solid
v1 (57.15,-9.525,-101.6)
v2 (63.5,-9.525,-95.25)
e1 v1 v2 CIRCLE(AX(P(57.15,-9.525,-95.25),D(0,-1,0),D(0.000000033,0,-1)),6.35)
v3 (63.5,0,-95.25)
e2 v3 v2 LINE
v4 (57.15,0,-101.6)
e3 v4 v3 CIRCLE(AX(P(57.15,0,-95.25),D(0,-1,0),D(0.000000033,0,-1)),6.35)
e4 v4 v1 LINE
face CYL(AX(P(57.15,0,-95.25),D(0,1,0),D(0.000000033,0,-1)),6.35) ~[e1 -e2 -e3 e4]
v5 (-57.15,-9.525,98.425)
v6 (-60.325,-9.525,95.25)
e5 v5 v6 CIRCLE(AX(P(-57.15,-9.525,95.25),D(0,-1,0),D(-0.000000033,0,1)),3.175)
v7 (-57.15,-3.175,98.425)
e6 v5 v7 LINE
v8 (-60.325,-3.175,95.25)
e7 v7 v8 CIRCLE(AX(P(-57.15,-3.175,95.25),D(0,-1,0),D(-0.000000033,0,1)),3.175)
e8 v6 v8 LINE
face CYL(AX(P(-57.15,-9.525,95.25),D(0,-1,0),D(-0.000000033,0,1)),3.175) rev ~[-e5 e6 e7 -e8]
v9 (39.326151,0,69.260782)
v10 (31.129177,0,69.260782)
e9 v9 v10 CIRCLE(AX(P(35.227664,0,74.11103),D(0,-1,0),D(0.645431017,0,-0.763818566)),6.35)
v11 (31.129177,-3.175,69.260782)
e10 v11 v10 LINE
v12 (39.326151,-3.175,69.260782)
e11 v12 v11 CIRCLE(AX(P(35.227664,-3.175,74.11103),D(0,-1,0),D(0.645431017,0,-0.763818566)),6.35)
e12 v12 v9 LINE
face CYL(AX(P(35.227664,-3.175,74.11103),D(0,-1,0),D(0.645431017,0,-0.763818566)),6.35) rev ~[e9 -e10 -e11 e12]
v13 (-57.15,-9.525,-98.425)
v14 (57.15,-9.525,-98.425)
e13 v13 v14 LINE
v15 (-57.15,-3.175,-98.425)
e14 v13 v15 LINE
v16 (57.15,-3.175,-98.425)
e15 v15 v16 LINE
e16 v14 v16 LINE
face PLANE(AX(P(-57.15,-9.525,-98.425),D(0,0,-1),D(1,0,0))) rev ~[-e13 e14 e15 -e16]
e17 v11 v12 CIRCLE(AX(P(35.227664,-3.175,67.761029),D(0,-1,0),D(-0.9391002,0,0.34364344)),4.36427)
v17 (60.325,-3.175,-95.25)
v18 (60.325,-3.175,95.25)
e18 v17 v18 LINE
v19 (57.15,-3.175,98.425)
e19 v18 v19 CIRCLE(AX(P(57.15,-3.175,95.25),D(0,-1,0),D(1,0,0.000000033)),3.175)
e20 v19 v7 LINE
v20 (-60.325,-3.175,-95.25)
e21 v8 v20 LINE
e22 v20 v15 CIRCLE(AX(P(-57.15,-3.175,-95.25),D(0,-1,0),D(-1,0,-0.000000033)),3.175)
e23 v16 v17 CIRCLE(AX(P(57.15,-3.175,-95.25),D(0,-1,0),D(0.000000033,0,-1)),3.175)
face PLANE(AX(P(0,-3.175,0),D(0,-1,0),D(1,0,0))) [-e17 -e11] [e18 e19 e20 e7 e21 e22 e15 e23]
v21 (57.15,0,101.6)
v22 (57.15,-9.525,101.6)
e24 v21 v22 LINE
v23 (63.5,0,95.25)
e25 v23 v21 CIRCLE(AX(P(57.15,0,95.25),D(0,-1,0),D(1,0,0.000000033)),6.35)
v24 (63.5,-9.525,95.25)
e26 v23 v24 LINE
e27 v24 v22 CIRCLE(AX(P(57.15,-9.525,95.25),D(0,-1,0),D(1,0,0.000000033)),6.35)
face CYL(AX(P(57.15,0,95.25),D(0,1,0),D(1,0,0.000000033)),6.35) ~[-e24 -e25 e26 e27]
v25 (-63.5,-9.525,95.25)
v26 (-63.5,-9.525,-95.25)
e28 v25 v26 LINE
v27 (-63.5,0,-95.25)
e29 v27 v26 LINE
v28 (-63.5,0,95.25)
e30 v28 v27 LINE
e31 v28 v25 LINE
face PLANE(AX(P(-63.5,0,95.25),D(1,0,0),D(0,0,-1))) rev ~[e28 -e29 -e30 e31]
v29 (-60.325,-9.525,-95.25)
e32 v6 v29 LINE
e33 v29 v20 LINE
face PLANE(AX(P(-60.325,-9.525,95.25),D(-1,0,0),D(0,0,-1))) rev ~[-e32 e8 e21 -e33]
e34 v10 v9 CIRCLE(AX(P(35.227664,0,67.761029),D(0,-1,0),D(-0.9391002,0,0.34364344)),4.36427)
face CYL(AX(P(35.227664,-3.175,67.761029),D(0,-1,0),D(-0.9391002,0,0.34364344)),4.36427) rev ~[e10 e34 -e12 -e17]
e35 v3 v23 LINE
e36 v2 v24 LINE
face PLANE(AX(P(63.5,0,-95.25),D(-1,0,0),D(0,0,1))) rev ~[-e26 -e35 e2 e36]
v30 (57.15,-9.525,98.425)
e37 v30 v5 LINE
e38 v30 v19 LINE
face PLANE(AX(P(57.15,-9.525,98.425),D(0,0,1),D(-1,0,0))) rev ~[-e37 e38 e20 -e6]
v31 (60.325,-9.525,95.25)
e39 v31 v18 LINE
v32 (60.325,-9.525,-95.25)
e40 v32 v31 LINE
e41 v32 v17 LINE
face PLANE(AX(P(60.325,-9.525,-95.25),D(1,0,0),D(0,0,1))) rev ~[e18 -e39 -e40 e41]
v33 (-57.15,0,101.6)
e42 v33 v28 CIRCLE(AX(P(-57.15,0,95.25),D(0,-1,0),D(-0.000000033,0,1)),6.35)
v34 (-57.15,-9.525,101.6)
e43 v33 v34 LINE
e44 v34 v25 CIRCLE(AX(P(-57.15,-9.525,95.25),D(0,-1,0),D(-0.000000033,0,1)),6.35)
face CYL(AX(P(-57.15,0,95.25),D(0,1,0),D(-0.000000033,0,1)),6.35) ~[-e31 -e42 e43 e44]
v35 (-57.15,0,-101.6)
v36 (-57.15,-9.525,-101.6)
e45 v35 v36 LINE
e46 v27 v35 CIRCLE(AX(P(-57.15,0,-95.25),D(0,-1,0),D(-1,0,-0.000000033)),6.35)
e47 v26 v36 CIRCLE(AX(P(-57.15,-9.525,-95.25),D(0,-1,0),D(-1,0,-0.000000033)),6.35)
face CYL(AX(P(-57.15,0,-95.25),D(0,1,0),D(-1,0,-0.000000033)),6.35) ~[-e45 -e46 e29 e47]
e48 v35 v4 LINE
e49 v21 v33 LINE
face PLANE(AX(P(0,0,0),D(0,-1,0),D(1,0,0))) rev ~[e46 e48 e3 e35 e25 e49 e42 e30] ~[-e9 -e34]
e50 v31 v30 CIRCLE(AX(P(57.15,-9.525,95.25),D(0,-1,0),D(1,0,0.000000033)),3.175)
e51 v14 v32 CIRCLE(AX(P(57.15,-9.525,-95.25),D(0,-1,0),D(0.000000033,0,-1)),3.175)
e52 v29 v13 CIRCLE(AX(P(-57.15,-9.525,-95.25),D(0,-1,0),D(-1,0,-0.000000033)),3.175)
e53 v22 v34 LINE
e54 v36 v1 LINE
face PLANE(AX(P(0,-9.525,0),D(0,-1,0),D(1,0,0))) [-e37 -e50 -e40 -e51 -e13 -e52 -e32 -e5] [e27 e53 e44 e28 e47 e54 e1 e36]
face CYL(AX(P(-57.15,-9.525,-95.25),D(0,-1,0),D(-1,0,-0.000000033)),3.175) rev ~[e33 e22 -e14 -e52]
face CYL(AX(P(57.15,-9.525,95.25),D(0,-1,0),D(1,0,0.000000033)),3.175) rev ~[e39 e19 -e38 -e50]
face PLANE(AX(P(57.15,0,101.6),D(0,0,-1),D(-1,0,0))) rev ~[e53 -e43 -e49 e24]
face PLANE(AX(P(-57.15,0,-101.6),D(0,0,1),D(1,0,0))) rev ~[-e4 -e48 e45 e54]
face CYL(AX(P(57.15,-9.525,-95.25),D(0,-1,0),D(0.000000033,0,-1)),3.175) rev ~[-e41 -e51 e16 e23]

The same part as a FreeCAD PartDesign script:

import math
import FreeCAD as App
import Part
import Sketcher
Q = App.Units.Quantity

doc = App.newDocument("Part")
body = doc.addObject("PartDesign::Body", "Body")

# Sketch on XZ plane
sketch1 = body.newObject("Sketcher::SketchObject", "Sketch")
sketch1.AttachmentSupport = (doc.getObject("XZ_Plane"), [""])
sketch1.MapMode = "FlatFace"
sketch1.addGeometry([
    Part.ArcOfCircle(Part.Circle(App.Vector(57, 95, 0), App.Vector(0, 0, 1), 6), math.radians(0), math.radians(90)),  # 0
    Part.LineSegment(App.Vector(57, 102, 0), App.Vector(-57, 102, 0)),  # 1
    Part.ArcOfCircle(Part.Circle(App.Vector(-57, 95, 0), App.Vector(0, 0, 1), 6), math.radians(90), math.radians(180)),  # 2
    Part.LineSegment(App.Vector(-64, 95, 0), App.Vector(-64, -95, 0)),  # 3
    Part.ArcOfCircle(Part.Circle(App.Vector(-57, -95, 0), App.Vector(0, 0, 1), 6), math.radians(-180), math.radians(-90)),  # 4
    Part.LineSegment(App.Vector(-57, -102, 0), App.Vector(57, -102, 0)),  # 5
    Part.ArcOfCircle(Part.Circle(App.Vector(57, -95, 0), App.Vector(0, 0, 1), 6), math.radians(-90), math.radians(0)),  # 6
    Part.LineSegment(App.Vector(64, -95, 0), App.Vector(64, 95, 0)),  # 7
], False)
sketch1.addConstraint([
    Sketcher.Constraint("Tangent", 0, 2, 1, 1),
    Sketcher.Constraint("Tangent", 1, 2, 2, 1),
    Sketcher.Constraint("Tangent", 2, 2, 3, 1),
    Sketcher.Constraint("Tangent", 3, 2, 4, 1),
    Sketcher.Constraint("Tangent", 4, 2, 5, 1),
    Sketcher.Constraint("Tangent", 5, 2, 6, 1),
    Sketcher.Constraint("Tangent", 6, 2, 7, 1),
    Sketcher.Constraint("Tangent", 7, 2, 0, 1),
    Sketcher.Constraint("Horizontal", 1),
    Sketcher.Constraint("Vertical", 3),
    Sketcher.Constraint("Horizontal", 5),
    Sketcher.Constraint("Vertical", 7),
    Sketcher.Constraint("Equal", 0, 2),
    Sketcher.Constraint("Equal", 2, 4),
    Sketcher.Constraint("Equal", 4, 6),
    Sketcher.Constraint("Symmetric", 0, 3, 4, 3, -1, 1),
    Sketcher.Constraint("Radius", 0, Q("0.25 in")),
    Sketcher.Constraint("DistanceX", 1, 2, 1, 1, Q("4.5 in")),
    Sketcher.Constraint("DistanceY", 3, 2, 3, 1, Q("7.5 in")),
])
pad1 = body.newObject("PartDesign::Pad", "Pad")
pad1.Profile = sketch1
pad1.Length = Q("0.375 in")

# Sketch on XZ plane
sketch2 = body.newObject("Sketcher::SketchObject", "Sketch001")
sketch2.AttachmentSupport = (doc.getObject("XZ_Plane"), [""])
sketch2.MapMode = "FlatFace"
sketch2.AttachmentOffset = App.Placement(App.Vector(0, 0, 0.375 * 25.4), App.Rotation())
sketch2.addGeometry([
    Part.ArcOfCircle(Part.Circle(App.Vector(57.1, 95.2, 0), App.Vector(0, 0, 1), 3.2), math.radians(0), math.radians(90)),  # 0
    Part.LineSegment(App.Vector(57.1, 98.4, 0), App.Vector(-57.1, 98.4, 0)),  # 1
    Part.ArcOfCircle(Part.Circle(App.Vector(-57.1, 95.2, 0), App.Vector(0, 0, 1), 3.2), math.radians(90), math.radians(180)),  # 2
    Part.LineSegment(App.Vector(-60.3, 95.2, 0), App.Vector(-60.3, -95.2, 0)),  # 3
    Part.ArcOfCircle(Part.Circle(App.Vector(-57.1, -95.2, 0), App.Vector(0, 0, 1), 3.2), math.radians(-180), math.radians(-90)),  # 4
    Part.LineSegment(App.Vector(-57.1, -98.4, 0), App.Vector(57.1, -98.4, 0)),  # 5
    Part.ArcOfCircle(Part.Circle(App.Vector(57.1, -95.2, 0), App.Vector(0, 0, 1), 3.2), math.radians(-90), math.radians(0)),  # 6
    Part.LineSegment(App.Vector(60.3, -95.2, 0), App.Vector(60.3, 95.2, 0)),  # 7
], False)
sketch2.addConstraint([
    Sketcher.Constraint("Tangent", 0, 2, 1, 1),
    Sketcher.Constraint("Tangent", 1, 2, 2, 1),
    Sketcher.Constraint("Tangent", 2, 2, 3, 1),
    Sketcher.Constraint("Tangent", 3, 2, 4, 1),
    Sketcher.Constraint("Tangent", 4, 2, 5, 1),
    Sketcher.Constraint("Tangent", 5, 2, 6, 1),
    Sketcher.Constraint("Tangent", 6, 2, 7, 1),
    Sketcher.Constraint("Tangent", 7, 2, 0, 1),
    Sketcher.Constraint("Horizontal", 1),
    Sketcher.Constraint("Vertical", 3),
    Sketcher.Constraint("Horizontal", 5),
    Sketcher.Constraint("Vertical", 7),
    Sketcher.Constraint("Equal", 0, 2),
    Sketcher.Constraint("Equal", 2, 4),
    Sketcher.Constraint("Equal", 4, 6),
    Sketcher.Constraint("Symmetric", 0, 3, 4, 3, -1, 1),
    Sketcher.Constraint("DistanceX", 1, 2, 1, 1, Q("4.5 in")),
    Sketcher.Constraint("DistanceY", 3, 2, 3, 1, Q("7.5 in")),
    Sketcher.Constraint("Radius", 0, Q("0.125 in")),
])
pocket1 = body.newObject("PartDesign::Pocket", "Pocket")
pocket1.Profile = sketch2
pocket1.Length = Q("0.25 in")

# Sketch on XZ plane
sketch3 = body.newObject("Sketcher::SketchObject", "Sketch002")
sketch3.AttachmentSupport = (doc.getObject("XZ_Plane"), [""])
sketch3.MapMode = "FlatFace"
sketch3.AttachmentOffset = App.Placement(App.Vector(0, 0, 0.125 * 25.4), App.Rotation())
sketch3.addGeometry([
    Part.ArcOfCircle(Part.Circle(App.Vector(35.2, 67.8, 0), App.Vector(0, 0, 1), 4.4), math.radians(160), math.radians(380)),
    Part.ArcOfCircle(Part.Circle(App.Vector(35.2, 74.1, 0), App.Vector(0, 0, 1), 6.4), math.radians(-50), math.radians(230)),
], False)
sketch3.addConstraint([
    Sketcher.Constraint("Coincident", 0, 1, 1, 2),
    Sketcher.Constraint("Coincident", 1, 1, 0, 2),
    Sketcher.Constraint("Horizontal", 0, 1, 1, 1),
    Sketcher.Constraint("Radius", 1, Q("0.25 in")),
    Sketcher.Constraint("DistanceY", 0, 3, 1, 3, Q("0.25 in")),
    Sketcher.Constraint("Radius", 0, 4.36427),
    Sketcher.Constraint("DistanceY", -1, 1, 0, 3, 67.761029),
    Sketcher.Constraint("DistanceX", -1, 1, 1, 1, 39.326151),
])
pocket2 = body.newObject("PartDesign::Pocket", "Pocket001")
pocket2.Profile = sketch3
pocket2.Type = "ThroughAll"

doc.recompute()
